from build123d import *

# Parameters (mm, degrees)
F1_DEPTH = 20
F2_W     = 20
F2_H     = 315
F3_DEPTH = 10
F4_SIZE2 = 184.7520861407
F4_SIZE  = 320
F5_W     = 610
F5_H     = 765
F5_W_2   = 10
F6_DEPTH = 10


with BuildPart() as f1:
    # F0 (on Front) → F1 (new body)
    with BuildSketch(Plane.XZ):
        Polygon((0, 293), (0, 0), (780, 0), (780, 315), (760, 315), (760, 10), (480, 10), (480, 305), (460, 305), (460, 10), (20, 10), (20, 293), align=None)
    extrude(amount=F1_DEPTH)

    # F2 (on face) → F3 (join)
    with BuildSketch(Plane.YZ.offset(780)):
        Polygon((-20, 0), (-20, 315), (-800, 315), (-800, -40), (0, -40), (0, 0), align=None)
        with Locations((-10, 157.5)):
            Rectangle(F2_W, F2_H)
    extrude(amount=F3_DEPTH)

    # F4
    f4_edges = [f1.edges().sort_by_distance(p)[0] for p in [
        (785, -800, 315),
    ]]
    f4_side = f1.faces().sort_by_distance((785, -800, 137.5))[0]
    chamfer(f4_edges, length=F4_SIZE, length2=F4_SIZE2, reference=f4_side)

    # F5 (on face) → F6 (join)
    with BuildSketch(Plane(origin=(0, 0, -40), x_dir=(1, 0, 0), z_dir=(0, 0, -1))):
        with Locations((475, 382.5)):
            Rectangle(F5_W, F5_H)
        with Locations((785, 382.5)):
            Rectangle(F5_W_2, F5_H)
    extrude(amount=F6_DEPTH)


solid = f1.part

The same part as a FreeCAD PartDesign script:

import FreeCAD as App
import Part
import Sketcher
from FreeCAD import Vector
Q = App.Units.Quantity


def edges_at(feature, points):
    """Names of the edges that pass closest to the given points."""
    edges = feature.Shape.Edges
    near = lambda p: min(range(len(edges)), key=lambda i: edges[i].distToShape(Part.Vertex(*p))[0])
    return sorted({f"Edge{near(p) + 1}" for p in points})

doc = App.newDocument("Part")
body = doc.addObject("PartDesign::Body", "Body")

sketch1 = body.newObject("Sketcher::SketchObject", "Sketch")
sketch1.AttachmentSupport = (doc.getObject("XZ_Plane"), [""])
sketch1.MapMode = "FlatFace"
sketch1.addGeometry(Part.LineSegment(Vector(0, 293, 0), Vector(0, 0, 0)), False)
sketch1.addGeometry(Part.LineSegment(Vector(0, 0, 0), Vector(780, 0, 0)), False)
sketch1.addGeometry(Part.LineSegment(Vector(780, 0, 0), Vector(780, 315, 0)), False)
sketch1.addGeometry(Part.LineSegment(Vector(780, 315, 0), Vector(760, 315, 0)), False)
sketch1.addGeometry(Part.LineSegment(Vector(760, 315, 0), Vector(760, 10, 0)), False)
sketch1.addGeometry(Part.LineSegment(Vector(760, 10, 0), Vector(480, 10, 0)), False)
sketch1.addGeometry(Part.LineSegment(Vector(480, 10, 0), Vector(480, 305, 0)), False)
sketch1.addGeometry(Part.LineSegment(Vector(480, 305, 0), Vector(460, 305, 0)), False)
sketch1.addGeometry(Part.LineSegment(Vector(460, 305, 0), Vector(460, 10, 0)), False)
sketch1.addGeometry(Part.LineSegment(Vector(460, 10, 0), Vector(20, 10, 0)), False)
sketch1.addGeometry(Part.LineSegment(Vector(20, 10, 0), Vector(20, 293, 0)), False)
sketch1.addGeometry(Part.LineSegment(Vector(20, 293, 0), Vector(0, 293, 0)), False)
sketch1.addConstraint(Sketcher.Constraint("Coincident", 0, 2, 1, 1))
sketch1.addConstraint(Sketcher.Constraint("Coincident", 1, 2, 2, 1))
sketch1.addConstraint(Sketcher.Constraint("Coincident", 2, 2, 3, 1))
sketch1.addConstraint(Sketcher.Constraint("Coincident", 3, 2, 4, 1))
sketch1.addConstraint(Sketcher.Constraint("Coincident", 4, 2, 5, 1))
sketch1.addConstraint(Sketcher.Constraint("Coincident", 5, 2, 6, 1))
sketch1.addConstraint(Sketcher.Constraint("Coincident", 6, 2, 7, 1))
sketch1.addConstraint(Sketcher.Constraint("Coincident", 7, 2, 8, 1))
sketch1.addConstraint(Sketcher.Constraint("Coincident", 8, 2, 9, 1))
sketch1.addConstraint(Sketcher.Constraint("Coincident", 9, 2, 10, 1))
sketch1.addConstraint(Sketcher.Constraint("Coincident", 10, 2, 11, 1))
sketch1.addConstraint(Sketcher.Constraint("Coincident", 11, 2, 0, 1))
sketch1.addConstraint(Sketcher.Constraint("Vertical", 0))
sketch1.addConstraint(Sketcher.Constraint("Horizontal", 1))
sketch1.addConstraint(Sketcher.Constraint("Vertical", 2))
sketch1.addConstraint(Sketcher.Constraint("Horizontal", 3))
sketch1.addConstraint(Sketcher.Constraint("Vertical", 4))
sketch1.addConstraint(Sketcher.Constraint("Horizontal", 5))
sketch1.addConstraint(Sketcher.Constraint("Vertical", 6))
sketch1.addConstraint(Sketcher.Constraint("Horizontal", 7))
sketch1.addConstraint(Sketcher.Constraint("Vertical", 8))
sketch1.addConstraint(Sketcher.Constraint("Horizontal", 9))
sketch1.addConstraint(Sketcher.Constraint("Vertical", 10))
sketch1.addConstraint(Sketcher.Constraint("Horizontal", 11))
sketch1.addConstraint(Sketcher.Constraint("Coincident", 0, 2, -1, 1))
sketch1.addConstraint(Sketcher.Constraint("Horizontal", 5, 2, 8, 2))
sketch1.addConstraint(Sketcher.Constraint("Equal", 3, 7))
sketch1.addConstraint(Sketcher.Constraint("Equal", 7, 11))
sketch1.addConstraint(Sketcher.Constraint("DistanceX", 1, 1, 1, 2, Q("780 mm")))
sketch1.addConstraint(Sketcher.Constraint("DistanceX", 3, 2, 3, 1, Q("20 mm")))
sketch1.addConstraint(Sketcher.Constraint("DistanceX", 5, 2, 5, 1, Q("280 mm")))
sketch1.addConstraint(Sketcher.Constraint("DistanceY", 0, 2, 0, 1, Q("293 mm")))
sketch1.addConstraint(Sketcher.Constraint("DistanceY", 2, 1, 2, 2, Q("315 mm")))
sketch1.addConstraint(Sketcher.Constraint("DistanceY", 4, 2, 4, 1, Q("305 mm")))
sketch1.addConstraint(Sketcher.Constraint("DistanceY", 6, 1, 6, 2, Q("295 mm")))
pad1 = body.newObject("PartDesign::Pad", "Pad")
pad1.Profile = sketch1
pad1.Length = 20

sketch2 = body.newObject("Sketcher::SketchObject", "Sketch001")
sketch2.AttachmentSupport = (doc.getObject("YZ_Plane"), [""])
sketch2.MapMode = "FlatFace"
sketch2.AttachmentOffset = App.Placement(Vector(0, 0, 780), App.Rotation())
sketch2.addGeometry(Part.LineSegment(Vector(-800, 315, 0), Vector(-800, -40, 0)), False)
sketch2.addGeometry(Part.LineSegment(Vector(-800, -40, 0), Vector(0, -40, 0)), False)
sketch2.addGeometry(Part.LineSegment(Vector(0, -40, 0), Vector(0, 315, 0)), False)
sketch2.addGeometry(Part.LineSegment(Vector(0, 315, 0), Vector(-800, 315, 0)), False)
sketch2.addConstraint(Sketcher.Constraint("Coincident", 0, 2, 1, 1))
sketch2.addConstraint(Sketcher.Constraint("Coincident", 1, 2, 2, 1))
sketch2.addConstraint(Sketcher.Constraint("Coincident", 2, 2, 3, 1))
sketch2.addConstraint(Sketcher.Constraint("Coincident", 3, 2, 0, 1))
sketch2.addConstraint(Sketcher.Constraint("Vertical", 0))
sketch2.addConstraint(Sketcher.Constraint("Horizontal", 1))
sketch2.addConstraint(Sketcher.Constraint("Vertical", 2))
sketch2.addConstraint(Sketcher.Constraint("Horizontal", 3))
sketch2.addConstraint(Sketcher.Constraint("PointOnObject", 1, 2, -2))
sketch2.addConstraint(Sketcher.Constraint("DistanceX", 1, 1, 1, 2, Q("800 mm")))
sketch2.addConstraint(Sketcher.Constraint("DistanceY", 0, 2, 0, 1, Q("355 mm")))
sketch2.addConstraint(Sketcher.Constraint("DistanceY", 0, 2, -1, 1, Q("40 mm")))
pad2 = body.newObject("PartDesign::Pad", "Pad001")
pad2.Profile = sketch2
pad2.Length = 10
doc.recompute()

chamfer = body.newObject("PartDesign::Chamfer", "Chamfer")
chamfer.Base = (pad2, edges_at(pad2, [(785, -800, 315)]))
chamfer.ChamferType = "Two distances"
chamfer.Size = 320
chamfer.Size2 = 184.752086

sketch3 = body.newObject("Sketcher::SketchObject", "Sketch002")
sketch3.AttachmentSupport = (doc.getObject("XY_Plane"), [""])
sketch3.MapMode = "FlatFace"
sketch3.AttachmentOffset = App.Placement(Vector(0, 0, -40), App.Rotation())
sketch3.addGeometry(Part.LineSegment(Vector(170, -765, 0), Vector(170, 0, 0)), False)
sketch3.addGeometry(Part.LineSegment(Vector(170, 0, 0), Vector(790, 0, 0)), False)
sketch3.addGeometry(Part.LineSegment(Vector(790, 0, 0), Vector(790, -765, 0)), False)
sketch3.addGeometry(Part.LineSegment(Vector(790, -765, 0), Vector(170, -765, 0)), False)
sketch3.addConstraint(Sketcher.Constraint("Coincident", 0, 2, 1, 1))
sketch3.addConstraint(Sketcher.Constraint("Coincident", 1, 2, 2, 1))
sketch3.addConstraint(Sketcher.Constraint("Coincident", 2, 2, 3, 1))
sketch3.addConstraint(Sketcher.Constraint("Coincident", 3, 2, 0, 1))
sketch3.addConstraint(Sketcher.Constraint("Vertical", 0))
sketch3.addConstraint(Sketcher.Constraint("Horizontal", 1))
sketch3.addConstraint(Sketcher.Constraint("Vertical", 2))
sketch3.addConstraint(Sketcher.Constraint("Horizontal", 3))
sketch3.addConstraint(Sketcher.Constraint("PointOnObject", 0, 2, -1))
sketch3.addConstraint(Sketcher.Constraint("DistanceX", 1, 1, 1, 2, Q("620 mm")))
sketch3.addConstraint(Sketcher.Constraint("DistanceY", 0, 1, 0, 2, Q("765 mm")))
sketch3.addConstraint(Sketcher.Constraint("DistanceX", -1, 1, 0, 2, Q("170 mm")))
pad3 = body.newObject("PartDesign::Pad", "Pad002")
pad3.Profile = sketch3
pad3.Length = 10
pad3.Reversed = True

doc.recompute()
